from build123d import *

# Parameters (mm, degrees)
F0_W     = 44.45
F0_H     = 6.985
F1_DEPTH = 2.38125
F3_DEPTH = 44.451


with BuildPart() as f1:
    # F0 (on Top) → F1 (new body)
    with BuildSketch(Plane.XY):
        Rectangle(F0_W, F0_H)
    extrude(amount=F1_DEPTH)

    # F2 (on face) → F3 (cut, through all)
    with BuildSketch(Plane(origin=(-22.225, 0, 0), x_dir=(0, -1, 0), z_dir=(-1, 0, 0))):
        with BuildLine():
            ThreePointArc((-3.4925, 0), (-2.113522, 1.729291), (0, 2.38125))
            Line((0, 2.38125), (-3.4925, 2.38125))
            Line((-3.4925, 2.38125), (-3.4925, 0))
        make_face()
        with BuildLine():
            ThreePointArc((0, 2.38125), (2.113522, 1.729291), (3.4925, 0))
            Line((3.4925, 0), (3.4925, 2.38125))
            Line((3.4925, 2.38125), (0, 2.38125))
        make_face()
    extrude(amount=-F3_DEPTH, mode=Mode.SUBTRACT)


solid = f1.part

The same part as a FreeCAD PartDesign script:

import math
import FreeCAD as App
import Part
import Sketcher
Q = App.Units.Quantity


def add_polygon(sketch, points):
    """Adds a closed chain of lines whose ends are joined by coincident constraints."""
    first, n = sketch.GeometryCount, len(points)
    for a, b in zip(points, points[1:] + points[:1]):
        sketch.addGeometry(Part.LineSegment(App.Vector(*a, 0), App.Vector(*b, 0)), False)
    for i in range(n):
        sketch.addConstraint(Sketcher.Constraint("Coincident", first + i, 2, first + (i + 1) % n, 1))

doc = App.newDocument("Part")
body = doc.addObject("PartDesign::Body", "Body")

# Sketch on XY plane
sketch1 = doc.addObject("Sketcher::SketchObject", "Sketch")
body.addObject(sketch1)
sketch1.AttachmentSupport = (doc.XY_Plane, [""])
sketch1.MapMode = "FlatFace"
add_polygon(sketch1, [(-22, 3), (-22, -3), (22, -3), (22, 3)])  # lines 0-3
sketch1.addConstraint([
    Sketcher.Constraint("Vertical", 0),
    Sketcher.Constraint("Horizontal", 1),
    Sketcher.Constraint("Vertical", 2),
    Sketcher.Constraint("Horizontal", 3),
    Sketcher.Constraint("Symmetric", 0, 2, 2, 2, -1, 1),
    Sketcher.Constraint("DistanceX", 1, 1, 1, 2, Q("1.75 in")),
    Sketcher.Constraint("DistanceY", 0, 2, 0, 1, Q("0.275 in")),
])
pad1 = doc.addObject("PartDesign::Pad", "Pad")
body.addObject(pad1)
pad1.Profile = sketch1
pad1.Length = Q("0.09375 in")

# Sketch on YZ plane
sketch2 = doc.addObject("Sketcher::SketchObject", "Sketch001")
body.addObject(sketch2)
sketch2.AttachmentSupport = (doc.YZ_Plane, [""])
sketch2.MapMode = "FlatFace"
sketch2.AttachmentOffset = App.Placement(App.Vector(0, 0, -0.875 * 25.4), App.Rotation())
sketch2.addGeometry([
    Part.ArcOfCircle(Part.Circle(App.Vector(0, -1.4, 0), App.Vector(0, 0, 1), 3.8), math.radians(21), math.radians(90)),  # 0
    Part.LineSegment(App.Vector(0, 2.4, 0), App.Vector(3.5, 2.4, 0)),  # 1
    Part.LineSegment(App.Vector(3.5, 2.4, 0), App.Vector(3.5, 0, 0)),  # 2
    Part.ArcOfCircle(Part.Circle(App.Vector(0, -1.4, 0), App.Vector(0, 0, 1), 3.8), math.radians(90), math.radians(159)),  # 3
    Part.LineSegment(App.Vector(-3.5, 0, 0), App.Vector(-3.5, 2.4, 0)),  # 4
    Part.LineSegment(App.Vector(-3.5, 2.4, 0), App.Vector(0, 2.4, 0)),  # 5
], False)
sketch2.addConstraint([
    Sketcher.Constraint("Tangent", 0, 2, 1, 1),
    Sketcher.Constraint("Coincident", 1, 2, 2, 1),
    Sketcher.Constraint("Coincident", 2, 2, 0, 1),
    Sketcher.Constraint("Coincident", 3, 2, 4, 1),
    Sketcher.Constraint("Coincident", 4, 2, 5, 1),
    Sketcher.Constraint("Tangent", 5, 2, 3, 1),
    Sketcher.Constraint("Horizontal", 1),
    Sketcher.Constraint("Vertical", 2),
    Sketcher.Constraint("Vertical", 4),
    Sketcher.Constraint("Horizontal", 5),
    Sketcher.Constraint("Coincident", 3, 3, 0, 3),
    Sketcher.Constraint("Equal", 0, 3),
    Sketcher.Constraint("Symmetric", 2, 2, 3, 2, -1, 1),
    Sketcher.Constraint("PointOnObject", 0, 3, -2),
    Sketcher.Constraint("DistanceY", 2, 2, 2, 1, Q("0.09375 in")),
    Sketcher.Constraint("DistanceX", 1, 1, 1, 2, Q("0.1375 in")),
])
pocket1 = doc.addObject("PartDesign::Pocket", "Pocket")
body.addObject(pocket1)
pocket1.Profile = sketch2
pocket1.Type = "ThroughAll"
pocket1.Reversed = True

doc.recompute()
